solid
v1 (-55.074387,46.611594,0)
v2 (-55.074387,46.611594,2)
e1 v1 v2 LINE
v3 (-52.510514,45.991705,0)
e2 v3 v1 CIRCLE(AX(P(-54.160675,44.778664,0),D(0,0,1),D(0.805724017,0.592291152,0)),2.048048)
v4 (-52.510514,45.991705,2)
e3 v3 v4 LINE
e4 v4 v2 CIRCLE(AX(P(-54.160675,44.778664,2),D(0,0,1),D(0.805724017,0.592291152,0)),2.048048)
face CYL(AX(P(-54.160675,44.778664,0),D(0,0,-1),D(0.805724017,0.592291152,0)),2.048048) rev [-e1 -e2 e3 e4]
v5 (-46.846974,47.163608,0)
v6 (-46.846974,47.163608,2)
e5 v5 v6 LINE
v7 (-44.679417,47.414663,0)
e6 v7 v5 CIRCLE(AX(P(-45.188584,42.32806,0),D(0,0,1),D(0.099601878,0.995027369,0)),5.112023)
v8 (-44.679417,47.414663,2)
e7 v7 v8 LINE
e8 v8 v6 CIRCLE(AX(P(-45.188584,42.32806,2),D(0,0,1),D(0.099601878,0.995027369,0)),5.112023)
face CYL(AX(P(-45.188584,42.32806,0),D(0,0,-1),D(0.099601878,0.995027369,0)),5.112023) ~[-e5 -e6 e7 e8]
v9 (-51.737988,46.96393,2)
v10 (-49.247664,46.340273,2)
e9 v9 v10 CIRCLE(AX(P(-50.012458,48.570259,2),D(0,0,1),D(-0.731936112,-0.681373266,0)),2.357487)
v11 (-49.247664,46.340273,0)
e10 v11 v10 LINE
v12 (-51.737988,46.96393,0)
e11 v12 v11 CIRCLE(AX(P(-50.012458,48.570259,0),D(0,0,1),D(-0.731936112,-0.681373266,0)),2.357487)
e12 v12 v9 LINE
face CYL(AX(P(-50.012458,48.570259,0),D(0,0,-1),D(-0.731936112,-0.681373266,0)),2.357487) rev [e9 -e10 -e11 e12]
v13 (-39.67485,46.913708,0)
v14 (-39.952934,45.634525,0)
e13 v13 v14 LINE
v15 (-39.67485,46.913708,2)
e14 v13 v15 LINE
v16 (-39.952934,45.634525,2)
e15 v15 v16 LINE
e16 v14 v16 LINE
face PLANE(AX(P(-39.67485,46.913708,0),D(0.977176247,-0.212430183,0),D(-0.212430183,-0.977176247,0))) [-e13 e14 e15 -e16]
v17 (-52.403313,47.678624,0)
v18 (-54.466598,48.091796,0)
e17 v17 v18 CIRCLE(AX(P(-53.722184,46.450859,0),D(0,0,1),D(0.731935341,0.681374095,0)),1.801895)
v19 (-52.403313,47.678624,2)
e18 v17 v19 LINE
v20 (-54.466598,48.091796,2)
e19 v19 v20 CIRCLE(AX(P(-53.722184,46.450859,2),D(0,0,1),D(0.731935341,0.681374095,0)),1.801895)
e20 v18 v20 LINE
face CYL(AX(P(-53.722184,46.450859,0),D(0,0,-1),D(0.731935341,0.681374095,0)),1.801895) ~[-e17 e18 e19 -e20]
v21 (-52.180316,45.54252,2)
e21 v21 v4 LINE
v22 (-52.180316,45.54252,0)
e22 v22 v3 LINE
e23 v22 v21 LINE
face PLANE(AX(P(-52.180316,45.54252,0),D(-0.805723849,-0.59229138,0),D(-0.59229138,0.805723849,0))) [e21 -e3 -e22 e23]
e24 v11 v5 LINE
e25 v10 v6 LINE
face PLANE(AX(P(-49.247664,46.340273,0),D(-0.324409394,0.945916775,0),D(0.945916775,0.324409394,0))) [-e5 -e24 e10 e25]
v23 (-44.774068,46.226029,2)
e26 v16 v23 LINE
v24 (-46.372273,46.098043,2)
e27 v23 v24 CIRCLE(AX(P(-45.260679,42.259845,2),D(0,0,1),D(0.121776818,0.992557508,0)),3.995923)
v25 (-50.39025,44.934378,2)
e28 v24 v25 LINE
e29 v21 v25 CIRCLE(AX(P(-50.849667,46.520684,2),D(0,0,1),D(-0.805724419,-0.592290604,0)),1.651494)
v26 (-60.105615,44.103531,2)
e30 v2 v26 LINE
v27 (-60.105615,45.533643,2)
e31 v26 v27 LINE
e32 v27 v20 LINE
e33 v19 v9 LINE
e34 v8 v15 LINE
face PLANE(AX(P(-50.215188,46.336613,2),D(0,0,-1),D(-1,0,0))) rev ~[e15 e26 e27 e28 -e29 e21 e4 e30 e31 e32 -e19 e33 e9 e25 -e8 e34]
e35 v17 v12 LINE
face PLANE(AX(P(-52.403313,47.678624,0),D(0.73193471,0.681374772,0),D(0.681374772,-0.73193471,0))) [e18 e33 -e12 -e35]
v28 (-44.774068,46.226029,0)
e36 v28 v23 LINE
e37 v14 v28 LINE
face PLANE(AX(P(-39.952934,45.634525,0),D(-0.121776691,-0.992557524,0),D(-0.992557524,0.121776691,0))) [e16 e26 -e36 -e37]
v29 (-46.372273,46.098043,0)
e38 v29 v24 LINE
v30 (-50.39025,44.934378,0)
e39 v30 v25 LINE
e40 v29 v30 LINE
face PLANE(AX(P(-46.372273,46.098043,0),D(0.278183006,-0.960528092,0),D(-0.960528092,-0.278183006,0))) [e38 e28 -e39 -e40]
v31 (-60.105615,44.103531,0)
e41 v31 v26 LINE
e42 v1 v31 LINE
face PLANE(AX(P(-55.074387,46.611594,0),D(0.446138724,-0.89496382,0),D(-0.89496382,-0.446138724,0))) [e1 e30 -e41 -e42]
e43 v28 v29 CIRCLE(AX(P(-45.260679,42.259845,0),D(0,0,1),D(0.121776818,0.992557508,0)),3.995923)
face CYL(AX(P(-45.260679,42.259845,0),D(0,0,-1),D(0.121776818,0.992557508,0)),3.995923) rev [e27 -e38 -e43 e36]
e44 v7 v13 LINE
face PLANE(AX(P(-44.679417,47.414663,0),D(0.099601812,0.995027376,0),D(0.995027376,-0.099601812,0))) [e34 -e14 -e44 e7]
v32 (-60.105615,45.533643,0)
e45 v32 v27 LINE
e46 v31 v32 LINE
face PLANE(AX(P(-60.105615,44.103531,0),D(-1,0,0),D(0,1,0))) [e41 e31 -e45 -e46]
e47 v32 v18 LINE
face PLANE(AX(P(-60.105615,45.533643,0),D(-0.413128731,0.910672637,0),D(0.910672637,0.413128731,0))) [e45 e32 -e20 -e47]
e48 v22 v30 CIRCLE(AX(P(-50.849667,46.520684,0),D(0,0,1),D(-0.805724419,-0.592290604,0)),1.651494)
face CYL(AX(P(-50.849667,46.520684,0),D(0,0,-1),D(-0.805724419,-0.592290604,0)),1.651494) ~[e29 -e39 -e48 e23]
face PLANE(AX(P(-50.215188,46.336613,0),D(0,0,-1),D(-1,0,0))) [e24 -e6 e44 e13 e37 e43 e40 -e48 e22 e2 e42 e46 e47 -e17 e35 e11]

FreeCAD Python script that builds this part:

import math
import FreeCAD as App
import Part
import Sketcher
from FreeCAD import Vector
Q = App.Units.Quantity

doc = App.newDocument("Part")
body = doc.addObject("PartDesign::Body", "Body")

# Sketch on XY plane
sketch1 = body.newObject("Sketcher::SketchObject", "Sketch")
sketch1.AttachmentSupport = (doc.getObject("XY_Plane"), [""])
sketch1.MapMode = "FlatFace"
sketch1.addGeometry(Part.LineSegment(Vector(-54.466598, 48.091796, 0), Vector(-60.105615, 45.533643, 0)), False)
sketch1.addGeometry(Part.LineSegment(Vector(-60.105615, 45.533643, 0), Vector(-60.105615, 44.103531, 0)), False)
sketch1.addGeometry(Part.LineSegment(Vector(-60.105615, 44.103531, 0), Vector(-55.074387, 46.611594, 0)), False)
sketch1.addGeometry(Part.ArcOfCircle(Part.Circle(Vector(-54.160675, 44.778664, 0), Vector(0, 0, 1), 2.048048), math.radians(36.319764), math.radians(116.496161)), False)
sketch1.addGeometry(Part.LineSegment(Vector(-52.510514, 45.991705, 0), Vector(-52.180316, 45.54252, 0)), False)
sketch1.addGeometry(Part.ArcOfCircle(Part.Circle(Vector(-50.849667, 46.520684, 0), Vector(0, 0, 1), 1.651494), math.radians(-143.680275), math.radians(-73.848221)), False)
sketch1.addGeometry(Part.LineSegment(Vector(-50.39025, 44.934378, 0), Vector(-46.372273, 46.098043, 0)), False)
sketch1.addGeometry(Part.ArcOfCircle(Part.Circle(Vector(-45.260679, 42.259845, 0), Vector(0, 0, 1), 3.995923), math.radians(83.005341), math.radians(106.151735)), False)
sketch1.addGeometry(Part.LineSegment(Vector(-44.774068, 46.226029, 0), Vector(-39.952934, 45.634525, 0)), False)
sketch1.addGeometry(Part.LineSegment(Vector(-39.952934, 45.634525, 0), Vector(-39.67485, 46.913708, 0)), False)
sketch1.addGeometry(Part.LineSegment(Vector(-39.67485, 46.913708, 0), Vector(-44.679417, 47.414663, 0)), False)
sketch1.addGeometry(Part.ArcOfCircle(Part.Circle(Vector(-45.188584, 42.32806, 0), Vector(0, 0, 1), 5.112023), math.radians(84.283755), math.radians(108.929814)), False)
sketch1.addGeometry(Part.LineSegment(Vector(-46.846974, 47.163608, 0), Vector(-49.247664, 46.340273, 0)), False)
sketch1.addGeometry(Part.ArcOfCircle(Part.Circle(Vector(-50.012458, 48.570259, 0), Vector(0, 0, 1), 2.357487), math.radians(-137.048952), math.radians(-71.07013)), False)
sketch1.addGeometry(Part.LineSegment(Vector(-51.737988, 46.96393, 0), Vector(-52.403313, 47.678624, 0)), False)
sketch1.addGeometry(Part.ArcOfCircle(Part.Circle(Vector(-53.722184, 46.450859, 0), Vector(0, 0, 1), 1.801895), math.radians(42.951113), math.radians(114.401521)), False)
sketch1.addConstraint(Sketcher.Constraint("Coincident", 0, 2, 1, 1))
sketch1.addConstraint(Sketcher.Constraint("Coincident", 1, 2, 2, 1))
sketch1.addConstraint(Sketcher.Constraint("Coincident", 2, 2, 3, 2))
sketch1.addConstraint(Sketcher.Constraint("Coincident", 3, 1, 4, 1))
sketch1.addConstraint(Sketcher.Constraint("Coincident", 4, 2, 5, 1))
sketch1.addConstraint(Sketcher.Constraint("Coincident", 5, 2, 6, 1))
sketch1.addConstraint(Sketcher.Constraint("Coincident", 6, 2, 7, 2))
sketch1.addConstraint(Sketcher.Constraint("Coincident", 7, 1, 8, 1))
sketch1.addConstraint(Sketcher.Constraint("Coincident", 8, 2, 9, 1))
sketch1.addConstraint(Sketcher.Constraint("Coincident", 9, 2, 10, 1))
sketch1.addConstraint(Sketcher.Constraint("Coincident", 10, 2, 11, 1))
sketch1.addConstraint(Sketcher.Constraint("Coincident", 11, 2, 12, 1))
sketch1.addConstraint(Sketcher.Constraint("Coincident", 12, 2, 13, 2))
sketch1.addConstraint(Sketcher.Constraint("Coincident", 13, 1, 14, 1))
sketch1.addConstraint(Sketcher.Constraint("Coincident", 14, 2, 15, 1))
sketch1.addConstraint(Sketcher.Constraint("Coincident", 15, 2, 0, 1))
sketch1.addConstraint(Sketcher.Constraint("Vertical", 1))
sketch1.addConstraint(Sketcher.Constraint("Radius", 3, Q("2.048048 mm")))
sketch1.addConstraint(Sketcher.Constraint("Radius", 5, Q("1.651494 mm")))
sketch1.addConstraint(Sketcher.Constraint("Radius", 7, Q("3.995923 mm")))
sketch1.addConstraint(Sketcher.Constraint("Radius", 11, Q("5.112023 mm")))
sketch1.addConstraint(Sketcher.Constraint("Radius", 13, Q("2.357487 mm")))
sketch1.addConstraint(Sketcher.Constraint("Radius", 15, Q("1.801895 mm")))
sketch1.addConstraint(Sketcher.Constraint("DistanceX", 15, 2, -1, 1, Q("54.466598 mm")))
sketch1.addConstraint(Sketcher.Constraint("DistanceY", 11, 3, 13, 3, Q("6.242199 mm")))
sketch1.addConstraint(Sketcher.Constraint("DistanceY", 15, 3, 13, 3, Q("2.119399 mm")))
sketch1.addConstraint(Sketcher.Constraint("DistanceX", 15, 3, 11, 3, Q("8.533599 mm")))
sketch1.addConstraint(Sketcher.Constraint("DistanceX", 11, 2, 6, 2, Q("0.474701 mm")))
sketch1.addConstraint(Sketcher.Constraint("DistanceX", 3, 1, 14, 2, Q("0.107201 mm")))
sketch1.addConstraint(Sketcher.Constraint("Distance", 2, Q("5.621711 mm")))
sketch1.addConstraint(Sketcher.Constraint("Distance", 6, Q("4.183092 mm")))
sketch1.addConstraint(Sketcher.Constraint("Distance", 9, Q("1.309061 mm")))
sketch1.addConstraint(Sketcher.Constraint("Distance", 12, Q("2.537951 mm")))
sketch1.addConstraint(Sketcher.Constraint("DistanceY", 1, 2, 1, 1, Q("1.430112 mm")))
sketch1.addConstraint(Sketcher.Constraint("DistanceX", 7, 3, -1, 1, Q("45.260679 mm")))
sketch1.addConstraint(Sketcher.Constraint("DistanceY", -1, 1, 11, 3, Q("42.32806 mm")))
sketch1.addConstraint(Sketcher.Constraint("DistanceY", -1, 1, 1, 2, Q("44.103531 mm")))
sketch1.addConstraint(Sketcher.Constraint("DistanceY", -1, 1, 4, 2, Q("45.54252 mm")))
sketch1.addConstraint(Sketcher.Constraint("DistanceX", 5, 2, -1, 1, Q("50.39025 mm")))
sketch1.addConstraint(Sketcher.Constraint("DistanceX", 7, 1, -1, 1, Q("44.774068 mm")))
sketch1.addConstraint(Sketcher.Constraint("DistanceY", -1, 1, 7, 1, Q("46.226029 mm")))
sketch1.addConstraint(Sketcher.Constraint("DistanceX", 9, 2, -1, 1, Q("39.67485 mm")))
sketch1.addConstraint(Sketcher.Constraint("DistanceY", -1, 1, 11, 2, Q("47.163608 mm")))
sketch1.addConstraint(Sketcher.Constraint("DistanceX", 13, 1, -1, 1, Q("51.737988 mm")))
sketch1.addConstraint(Sketcher.Constraint("DistanceY", -1, 1, 13, 1, Q("46.96393 mm")))
sketch1.addConstraint(Sketcher.Constraint("DistanceX", 3, 3, 5, 3, Q("3.311008 mm")))
sketch1.addConstraint(Sketcher.Constraint("DistanceY", 3, 3, 5, 3, Q("1.74202 mm")))
sketch1.addConstraint(Sketcher.Constraint("DistanceX", 5, 3, 7, 3, Q("5.588988 mm")))
sketch1.addConstraint(Sketcher.Constraint("DistanceY", 7, 3, 5, 3, Q("4.260839 mm")))
sketch1.addConstraint(Sketcher.Constraint("DistanceX", 0, 2, 3, 3, Q("5.94494 mm")))
sketch1.addConstraint(Sketcher.Constraint("DistanceX", 15, 3, 3, 1, Q("1.21167 mm")))
sketch1.addConstraint(Sketcher.Constraint("DistanceX", 11, 3, 8, 2, Q("5.23565 mm")))
sketch1.addConstraint(Sketcher.Constraint("DistanceY", 7, 3, 8, 2, Q("3.37468 mm")))
sketch1.addConstraint(Sketcher.Constraint("DistanceX", 7, 1, 10, 2, Q("0.094651 mm")))
pad1 = body.newObject("PartDesign::Pad", "Pad")
pad1.Profile = sketch1
pad1.Length = 2

doc.recompute()
